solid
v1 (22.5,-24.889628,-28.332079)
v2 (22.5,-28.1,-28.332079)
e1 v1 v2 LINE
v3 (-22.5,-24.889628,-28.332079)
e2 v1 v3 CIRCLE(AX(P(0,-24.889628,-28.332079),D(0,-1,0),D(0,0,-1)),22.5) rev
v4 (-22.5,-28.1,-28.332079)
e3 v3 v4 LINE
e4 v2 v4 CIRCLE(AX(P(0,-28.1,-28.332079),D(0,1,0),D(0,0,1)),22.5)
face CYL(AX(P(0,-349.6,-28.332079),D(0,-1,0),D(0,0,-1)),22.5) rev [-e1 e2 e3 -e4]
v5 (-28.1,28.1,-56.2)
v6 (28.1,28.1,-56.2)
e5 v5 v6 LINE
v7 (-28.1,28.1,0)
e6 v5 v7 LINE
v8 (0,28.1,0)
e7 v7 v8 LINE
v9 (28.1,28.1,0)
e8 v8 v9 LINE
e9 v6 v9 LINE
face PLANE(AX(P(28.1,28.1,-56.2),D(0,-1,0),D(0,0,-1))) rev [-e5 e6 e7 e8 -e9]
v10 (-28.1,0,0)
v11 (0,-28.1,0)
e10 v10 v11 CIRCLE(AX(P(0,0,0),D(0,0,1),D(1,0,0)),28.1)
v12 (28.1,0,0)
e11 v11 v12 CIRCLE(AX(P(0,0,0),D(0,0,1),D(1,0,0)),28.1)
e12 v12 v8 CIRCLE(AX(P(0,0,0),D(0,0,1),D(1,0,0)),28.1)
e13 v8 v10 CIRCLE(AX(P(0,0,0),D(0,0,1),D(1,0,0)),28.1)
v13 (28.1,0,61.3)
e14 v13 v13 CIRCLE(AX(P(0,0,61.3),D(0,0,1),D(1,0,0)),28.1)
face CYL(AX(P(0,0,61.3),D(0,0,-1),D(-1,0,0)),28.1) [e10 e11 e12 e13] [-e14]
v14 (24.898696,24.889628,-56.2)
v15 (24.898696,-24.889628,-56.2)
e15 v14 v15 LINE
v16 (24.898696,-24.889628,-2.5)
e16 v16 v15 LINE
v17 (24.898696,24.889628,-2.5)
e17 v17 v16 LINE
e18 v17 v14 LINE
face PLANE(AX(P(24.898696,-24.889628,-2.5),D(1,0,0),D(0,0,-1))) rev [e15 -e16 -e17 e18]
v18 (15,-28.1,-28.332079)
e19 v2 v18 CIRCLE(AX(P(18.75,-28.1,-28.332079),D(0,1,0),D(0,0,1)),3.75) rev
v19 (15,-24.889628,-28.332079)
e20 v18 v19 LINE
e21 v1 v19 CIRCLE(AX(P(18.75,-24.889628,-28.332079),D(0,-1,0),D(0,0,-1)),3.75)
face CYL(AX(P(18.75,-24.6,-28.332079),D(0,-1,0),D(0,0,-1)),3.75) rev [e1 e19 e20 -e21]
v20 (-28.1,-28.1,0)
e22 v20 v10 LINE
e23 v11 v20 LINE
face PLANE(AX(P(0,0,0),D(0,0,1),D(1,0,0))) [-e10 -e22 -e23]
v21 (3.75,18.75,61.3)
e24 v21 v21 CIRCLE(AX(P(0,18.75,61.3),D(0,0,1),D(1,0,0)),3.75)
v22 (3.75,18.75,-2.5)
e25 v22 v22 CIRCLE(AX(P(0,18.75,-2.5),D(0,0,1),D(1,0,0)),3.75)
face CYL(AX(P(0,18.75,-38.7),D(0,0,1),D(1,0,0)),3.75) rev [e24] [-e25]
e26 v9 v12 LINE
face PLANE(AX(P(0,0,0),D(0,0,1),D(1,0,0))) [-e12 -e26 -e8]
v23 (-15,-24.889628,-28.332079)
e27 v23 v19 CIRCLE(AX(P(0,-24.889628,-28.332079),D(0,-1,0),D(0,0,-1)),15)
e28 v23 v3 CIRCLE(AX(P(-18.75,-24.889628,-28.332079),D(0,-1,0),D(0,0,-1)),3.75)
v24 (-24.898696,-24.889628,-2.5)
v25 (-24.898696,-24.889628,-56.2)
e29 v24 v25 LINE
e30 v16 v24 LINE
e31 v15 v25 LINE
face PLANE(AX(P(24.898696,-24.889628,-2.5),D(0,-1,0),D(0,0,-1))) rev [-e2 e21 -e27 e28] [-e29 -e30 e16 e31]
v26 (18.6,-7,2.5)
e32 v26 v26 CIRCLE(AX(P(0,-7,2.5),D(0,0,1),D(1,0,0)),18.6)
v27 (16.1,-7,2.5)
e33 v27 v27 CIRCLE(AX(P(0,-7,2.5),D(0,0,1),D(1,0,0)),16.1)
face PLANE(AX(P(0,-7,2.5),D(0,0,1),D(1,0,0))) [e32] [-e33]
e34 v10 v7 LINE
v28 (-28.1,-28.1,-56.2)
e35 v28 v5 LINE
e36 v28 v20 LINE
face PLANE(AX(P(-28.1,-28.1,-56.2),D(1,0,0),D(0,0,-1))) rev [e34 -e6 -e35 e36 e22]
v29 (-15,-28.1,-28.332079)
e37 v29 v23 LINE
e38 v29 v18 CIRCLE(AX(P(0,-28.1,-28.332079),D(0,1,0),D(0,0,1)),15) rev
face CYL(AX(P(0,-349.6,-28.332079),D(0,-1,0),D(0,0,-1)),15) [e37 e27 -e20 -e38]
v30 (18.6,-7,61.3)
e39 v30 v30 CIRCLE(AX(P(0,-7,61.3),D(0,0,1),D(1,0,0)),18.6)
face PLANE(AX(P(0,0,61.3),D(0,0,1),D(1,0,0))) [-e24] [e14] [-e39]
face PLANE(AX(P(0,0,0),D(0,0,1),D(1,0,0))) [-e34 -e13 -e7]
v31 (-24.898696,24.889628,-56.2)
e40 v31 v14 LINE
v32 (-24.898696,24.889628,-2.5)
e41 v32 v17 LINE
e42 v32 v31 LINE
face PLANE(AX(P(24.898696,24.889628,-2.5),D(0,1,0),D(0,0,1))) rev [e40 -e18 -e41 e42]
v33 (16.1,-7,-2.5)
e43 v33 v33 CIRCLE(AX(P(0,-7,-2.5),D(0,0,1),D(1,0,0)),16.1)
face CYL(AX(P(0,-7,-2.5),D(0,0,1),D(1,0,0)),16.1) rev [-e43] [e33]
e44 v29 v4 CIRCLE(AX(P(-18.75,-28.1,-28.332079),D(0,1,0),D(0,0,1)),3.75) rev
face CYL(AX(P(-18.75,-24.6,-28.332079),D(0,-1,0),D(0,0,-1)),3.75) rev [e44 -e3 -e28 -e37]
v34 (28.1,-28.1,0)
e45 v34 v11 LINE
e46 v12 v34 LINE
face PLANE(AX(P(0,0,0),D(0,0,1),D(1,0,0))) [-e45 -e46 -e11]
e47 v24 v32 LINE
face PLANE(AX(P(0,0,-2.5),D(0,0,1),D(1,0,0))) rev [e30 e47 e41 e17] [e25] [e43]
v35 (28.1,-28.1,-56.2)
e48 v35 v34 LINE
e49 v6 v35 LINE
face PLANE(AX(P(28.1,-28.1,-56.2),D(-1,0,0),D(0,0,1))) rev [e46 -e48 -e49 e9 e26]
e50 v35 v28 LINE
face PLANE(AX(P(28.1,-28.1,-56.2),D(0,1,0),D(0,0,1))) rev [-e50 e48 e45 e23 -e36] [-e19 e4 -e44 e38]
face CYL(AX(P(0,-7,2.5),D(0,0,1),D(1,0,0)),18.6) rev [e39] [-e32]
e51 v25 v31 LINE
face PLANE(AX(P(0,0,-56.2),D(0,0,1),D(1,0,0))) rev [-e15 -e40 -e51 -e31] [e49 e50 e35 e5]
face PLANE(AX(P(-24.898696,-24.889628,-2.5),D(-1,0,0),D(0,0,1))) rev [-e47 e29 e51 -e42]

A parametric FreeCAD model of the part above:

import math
import FreeCAD as App
import Part
import Sketcher
from FreeCAD import Vector


def add_polygon(sketch, points):
    """Adds a closed chain of lines whose ends are joined by coincident constraints."""
    first, n = sketch.GeometryCount, len(points)
    for a, b in zip(points, points[1:] + points[:1]):
        sketch.addGeometry(Part.LineSegment(App.Vector(*a, 0), App.Vector(*b, 0)), False)
    for i in range(n):
        sketch.addConstraint(Sketcher.Constraint("Coincident", first + i, 2, first + (i + 1) % n, 1))

doc = App.newDocument("Part")
body = doc.addObject("PartDesign::Body", "Body")

sketch1 = doc.addObject("Sketcher::SketchObject", "Sketch")
body.addObject(sketch1)
sketch1.AttachmentSupport = (doc.XY_Plane, [""])
sketch1.MapMode = "FlatFace"
sketch1.addGeometry(Part.Circle(Vector(0, 0, 0), Vector(0, 0, 1), 28), False)
sketch1.addConstraint([
    Sketcher.Constraint("Coincident", 0, 3, -1, 1),
    Sketcher.Constraint("Diameter", 0, 56.2),
])
pad1 = doc.addObject("PartDesign::Pad", "Pad")
body.addObject(pad1)
pad1.Profile = sketch1
pad1.Length = 61.3

sketch2 = doc.addObject("Sketcher::SketchObject", "Sketch001")
body.addObject(sketch2)
sketch2.AttachmentSupport = (doc.XY_Plane, [""])
sketch2.MapMode = "FlatFace"
sketch2.AttachmentOffset = App.Placement(Vector(0, 0, 61.3), App.Rotation())
sketch2.addGeometry(Part.Circle(Vector(0, -7, 0), Vector(0, 0, 1), 19), False)
sketch2.addConstraint([
    Sketcher.Constraint("PointOnObject", 0, 3, -2),
    Sketcher.Constraint("Diameter", 0, 37.2),
    Sketcher.Constraint("DistanceY", 0, 3, -1, 1, 7.0),
])
pocket1 = doc.addObject("PartDesign::Pocket", "Pocket")
body.addObject(pocket1)
pocket1.Profile = sketch2
pocket1.Length = 58.8

sketch3 = doc.addObject("Sketcher::SketchObject", "Sketch002")
body.addObject(sketch3)
sketch3.AttachmentSupport = (doc.XY_Plane, [""])
sketch3.MapMode = "FlatFace"
add_polygon(sketch3, [(28, 28), (28, -28), (-28, -28), (-28, 28)])
sketch3.addConstraint([
    Sketcher.Constraint("Vertical", 0),
    Sketcher.Constraint("Horizontal", 1),
    Sketcher.Constraint("Vertical", 2),
    Sketcher.Constraint("Horizontal", 3),
    Sketcher.Constraint("Symmetric", 0, 2, 2, 2, -1, 1),
    Sketcher.Constraint("Equal", 3, 0),
    Sketcher.Constraint("DistanceX", 1, 2, 1, 1, 56.2),
])
pad2 = doc.addObject("PartDesign::Pad", "Pad001")
body.addObject(pad2)
pad2.Profile = sketch3
pad2.Length = 56.2
pad2.Reversed = True

sketch4 = doc.addObject("Sketcher::SketchObject", "Sketch003")
body.addObject(sketch4)
sketch4.AttachmentSupport = (doc.XY_Plane, [""])
sketch4.MapMode = "FlatFace"
sketch4.AttachmentOffset = App.Placement(Vector(0, 0, 2.5), App.Rotation())
sketch4.addGeometry(Part.Circle(Vector(0, -7, 0), Vector(0, 0, 1), 16), False)
sketch4.addConstraint([
    Sketcher.Constraint("PointOnObject", 0, 3, -2),
    Sketcher.Constraint("Diameter", 0, 32.2),
    Sketcher.Constraint("DistanceY", 0, 3, -1, 1, 7.0),
])
pocket2 = doc.addObject("PartDesign::Pocket", "Pocket001")
body.addObject(pocket2)
pocket2.Profile = sketch4
pocket2.Length = 5

sketch5 = doc.addObject("Sketcher::SketchObject", "Sketch004")
body.addObject(sketch5)
sketch5.AttachmentSupport = (doc.XY_Plane, [""])
sketch5.MapMode = "FlatFace"
sketch5.AttachmentOffset = App.Placement(Vector(0, 0, -56.2), App.Rotation())
add_polygon(sketch5, [(25, 25), (25, -25), (-25, -25), (-25, 25)])
sketch5.addConstraint([
    Sketcher.Constraint("Vertical", 0),
    Sketcher.Constraint("Horizontal", 1),
    Sketcher.Constraint("Vertical", 2),
    Sketcher.Constraint("Horizontal", 3),
    Sketcher.Constraint("Symmetric", 0, 2, 2, 2, -1, 1),
    Sketcher.Constraint("DistanceX", 1, 2, 1, 1, 49.797391),
    Sketcher.Constraint("DistanceY", 0, 2, 0, 1, 49.779255),
])
pocket3 = doc.addObject("PartDesign::Pocket", "Pocket002")
body.addObject(pocket3)
pocket3.Profile = sketch5
pocket3.Length = 53.7
pocket3.Reversed = True

sketch6 = doc.addObject("Sketcher::SketchObject", "Sketch005")
body.addObject(sketch6)
sketch6.AttachmentSupport = (doc.XZ_Plane, [""])
sketch6.MapMode = "FlatFace"
sketch6.AttachmentOffset = App.Placement(Vector(0, 0, 28.1), App.Rotation())
sketch6.addGeometry(Part.Circle(Vector(0, -28, 0), Vector(0, 0, 1), 28), False)
sketch6.addConstraint([
    Sketcher.Constraint("PointOnObject", 0, 3, -2),
    Sketcher.Constraint("Diameter", 0, 56.2),
    Sketcher.Constraint("DistanceY", 0, 3, -1, 1, 28.1),
])
pad3 = doc.addObject("PartDesign::Pad", "Pad002")
body.addObject(pad3)
pad3.Profile = sketch6
pad3.Length = 321.5

sketch7 = doc.addObject("Sketcher::SketchObject", "Sketch006")
body.addObject(sketch7)
sketch7.AttachmentSupport = (doc.XZ_Plane, [""])
sketch7.MapMode = "FlatFace"
sketch7.AttachmentOffset = App.Placement(Vector(0, 0, 349.6), App.Rotation())
sketch7.addGeometry([
    Part.LineSegment(Vector(1.7, -25.8, 0), Vector(-1.7, -25.8, 0)),
    Part.ArcOfCircle(Part.Circle(Vector(0, -28.3, 0), Vector(0, 0, 1), 3), math.radians(124), math.radians(236)),
    Part.LineSegment(Vector(-1.7, -30.8, 0), Vector(1.7, -30.8, 0)),
    Part.ArcOfCircle(Part.Circle(Vector(0, -28.3, 0), Vector(0, 0, 1), 3), math.radians(-56), math.radians(56)),
], False)
sketch7.addConstraint([
    Sketcher.Constraint("Coincident", 0, 2, 1, 1),
    Sketcher.Constraint("Coincident", 1, 2, 2, 1),
    Sketcher.Constraint("Coincident", 2, 2, 3, 1),
    Sketcher.Constraint("Coincident", 3, 2, 0, 1),
    Sketcher.Constraint("Horizontal", 0),
    Sketcher.Constraint("Horizontal", 2),
    Sketcher.Constraint("Coincident", 3, 3, 1, 3),
    Sketcher.Constraint("Equal", 1, 3),
    Sketcher.Constraint("PointOnObject", 1, 3, -2),
    Sketcher.Constraint("Vertical", 0, 2, 1, 2),
    Sketcher.Constraint("Radius", 1, 3.0),
    Sketcher.Constraint("DistanceY", 1, 2, 0, 2, 5.0),
    Sketcher.Constraint("DistanceY", 1, 3, -1, 1, 28.332079),
])
pocket4 = doc.addObject("PartDesign::Pocket", "Pocket003")
body.addObject(pocket4)
pocket4.Profile = sketch7
pocket4.Length = 10

sketch8 = doc.addObject("Sketcher::SketchObject", "Sketch007")
body.addObject(sketch8)
sketch8.AttachmentSupport = (doc.XZ_Plane, [""])
sketch8.MapMode = "FlatFace"
sketch8.AttachmentOffset = App.Placement(Vector(0, 0, 349.6), App.Rotation())
sketch8.addGeometry(Part.Circle(Vector(0, -28.3, 0), Vector(0, 0, 1), 3), False)
sketch8.addConstraint([
    Sketcher.Constraint("PointOnObject", 0, 3, -2),
    Sketcher.Constraint("Diameter", 0, 6.0),
    Sketcher.Constraint("DistanceY", 0, 3, -1, 1, 28.332079),
])
pocket5 = doc.addObject("PartDesign::Pocket", "Pocket004")
body.addObject(pocket5)
pocket5.Profile = sketch8
pocket5.Length = 1

sketch9 = doc.addObject("Sketcher::SketchObject", "Sketch008")
body.addObject(sketch9)
sketch9.AttachmentSupport = (doc.XZ_Plane, [""])
sketch9.MapMode = "FlatFace"
sketch9.AttachmentOffset = App.Placement(Vector(0, 0, 349.6), App.Rotation())
sketch9.addGeometry(Part.Circle(Vector(0, -28, 0), Vector(0, 0, 1), 6), False)
sketch9.addConstraint([
    Sketcher.Constraint("PointOnObject", 0, 3, -2),
    Sketcher.Constraint("Diameter", 0, 12.05),
    Sketcher.Constraint("DistanceY", 0, 3, -1, 1, 28.332079),
])
pocket6 = doc.addObject("PartDesign::Pocket", "Pocket005")
body.addObject(pocket6)
pocket6.Profile = sketch9
pocket6.Length = 0.1

sketch10 = doc.addObject("Sketcher::SketchObject", "Sketch009")
body.addObject(sketch10)
sketch10.AttachmentSupport = (doc.XY_Plane, [""])
sketch10.MapMode = "FlatFace"
sketch10.AttachmentOffset = App.Placement(Vector(0, 0, -28.332079), App.Rotation())
add_polygon(sketch10, [(-23, -350), (-15, -350), (-15, -20), (-23, -20)])
sketch10.addConstraint([
    Sketcher.Constraint("Horizontal", 0),
    Sketcher.Constraint("Vertical", 1),
    Sketcher.Constraint("Horizontal", 2),
    Sketcher.Constraint("Vertical", 3),
    Sketcher.Constraint("DistanceX", 0, 1, 0, 2, 7.5),
    Sketcher.Constraint("DistanceY", 1, 1, 1, 2, 329.6),
    Sketcher.Constraint("DistanceX", 0, 2, -1, 1, 15.0),
    Sketcher.Constraint("DistanceY", 1, 2, -1, 1, 20.0),
])

sketch11 = doc.addObject("Sketcher::SketchObject", "Sketch010")
body.addObject(sketch11)
sketch11.AttachmentSupport = (doc.XZ_Plane, [""])
sketch11.MapMode = "FlatFace"
sketch11.AttachmentOffset = App.Placement(Vector(0, 0, 349.6), App.Rotation())
sketch11.addGeometry(Part.ArcOfCircle(Part.Circle(Vector(0, -28, 0), Vector(0, 0, 1), 15), math.radians(180), math.radians(360)), False)
sketch11.addConstraint([
    Sketcher.Constraint("Symmetric", 0, 1, 0, 2, -2),
    Sketcher.Constraint("Radius", 0, 15.0),
    Sketcher.Constraint("DistanceY", 0, 3, -1, 1, 28.332079),
    Sketcher.Constraint("DistanceY", 0, 1, -1, 1, 28.332079),
])
doc.recompute()

subtractivepipe = doc.addObject("PartDesign::SubtractivePipe", "SubtractivePipe")
body.addObject(subtractivepipe)
subtractivepipe.Profile = sketch10
subtractivepipe.Spine = (sketch11, ["Edge1"])

sketch12 = doc.addObject("Sketcher::SketchObject", "Sketch011")
body.addObject(sketch12)
sketch12.AttachmentSupport = (doc.XY_Plane, [""])
sketch12.MapMode = "FlatFace"
sketch12.AttachmentOffset = App.Placement(Vector(0, 0, 61.3), App.Rotation())
sketch12.addGeometry(Part.Circle(Vector(0, 18.8, 0), Vector(0, 0, 1), 3.8), False)
sketch12.addConstraint([
    Sketcher.Constraint("PointOnObject", 0, 3, -2),
    Sketcher.Constraint("Diameter", 0, 7.5),
    Sketcher.Constraint("DistanceY", -1, 1, 0, 3, 18.75),
])
pocket7 = doc.addObject("PartDesign::Pocket", "Pocket006")
body.addObject(pocket7)
pocket7.Profile = sketch12
pocket7.Length = 100

sketch13 = doc.addObject("Sketcher::SketchObject", "Sketch012")
body.addObject(sketch13)
sketch13.AttachmentSupport = (doc.XZ_Plane, [""])
sketch13.MapMode = "FlatFace"
sketch13.AttachmentOffset = App.Placement(Vector(0, 0, 349.6), App.Rotation())
sketch13.addGeometry([
    Part.Circle(Vector(18.8, -28.3, 0), Vector(0, 0, 1), 3.8),
    Part.Circle(Vector(-18.8, -28.3, 0), Vector(0, 0, 1), 3.8),
], False)
sketch13.addConstraint([
    Sketcher.Constraint("Equal", 0, 1),
    Sketcher.Constraint("Symmetric", 0, 3, 1, 3, -2),
    Sketcher.Constraint("Diameter", 0, 7.5),
    Sketcher.Constraint("DistanceX", 1, 3, 0, 3, 37.5),
    Sketcher.Constraint("DistanceY", 0, 3, -1, 1, 28.332079),
])
pocket8 = doc.addObject("PartDesign::Pocket", "Pocket007")
body.addObject(pocket8)
pocket8.Profile = sketch13
pocket8.Length = 325

sketch14 = doc.addObject("Sketcher::SketchObject", "Sketch013")
body.addObject(sketch14)
sketch14.AttachmentSupport = (doc.XY_Plane, [""])
sketch14.MapMode = "FlatFace"
sketch14.AttachmentOffset = App.Placement(Vector(0, 0, -56.2), App.Rotation())
add_polygon(sketch14, [(28, -28), (28, -407), (-58, -407), (-58, -28)])
sketch14.addConstraint([
    Sketcher.Constraint("Vertical", 0),
    Sketcher.Constraint("Horizontal", 1),
    Sketcher.Constraint("Vertical", 2),
    Sketcher.Constraint("Horizontal", 3),
    Sketcher.Constraint("DistanceX", -1, 1, 0, 2, 28.1),
    Sketcher.Constraint("DistanceY", 2, 2, -1, 1, 28.1),
    Sketcher.Constraint("DistanceX", 1, 2, 1, 1, 86.001348),
    Sketcher.Constraint("DistanceY", 0, 2, 0, 1, 379.283349),
])
pocket9 = doc.addObject("PartDesign::Pocket", "Pocket008")
body.addObject(pocket9)
pocket9.Profile = sketch14
pocket9.Length = 171.5
pocket9.Reversed = True

doc.recompute()
